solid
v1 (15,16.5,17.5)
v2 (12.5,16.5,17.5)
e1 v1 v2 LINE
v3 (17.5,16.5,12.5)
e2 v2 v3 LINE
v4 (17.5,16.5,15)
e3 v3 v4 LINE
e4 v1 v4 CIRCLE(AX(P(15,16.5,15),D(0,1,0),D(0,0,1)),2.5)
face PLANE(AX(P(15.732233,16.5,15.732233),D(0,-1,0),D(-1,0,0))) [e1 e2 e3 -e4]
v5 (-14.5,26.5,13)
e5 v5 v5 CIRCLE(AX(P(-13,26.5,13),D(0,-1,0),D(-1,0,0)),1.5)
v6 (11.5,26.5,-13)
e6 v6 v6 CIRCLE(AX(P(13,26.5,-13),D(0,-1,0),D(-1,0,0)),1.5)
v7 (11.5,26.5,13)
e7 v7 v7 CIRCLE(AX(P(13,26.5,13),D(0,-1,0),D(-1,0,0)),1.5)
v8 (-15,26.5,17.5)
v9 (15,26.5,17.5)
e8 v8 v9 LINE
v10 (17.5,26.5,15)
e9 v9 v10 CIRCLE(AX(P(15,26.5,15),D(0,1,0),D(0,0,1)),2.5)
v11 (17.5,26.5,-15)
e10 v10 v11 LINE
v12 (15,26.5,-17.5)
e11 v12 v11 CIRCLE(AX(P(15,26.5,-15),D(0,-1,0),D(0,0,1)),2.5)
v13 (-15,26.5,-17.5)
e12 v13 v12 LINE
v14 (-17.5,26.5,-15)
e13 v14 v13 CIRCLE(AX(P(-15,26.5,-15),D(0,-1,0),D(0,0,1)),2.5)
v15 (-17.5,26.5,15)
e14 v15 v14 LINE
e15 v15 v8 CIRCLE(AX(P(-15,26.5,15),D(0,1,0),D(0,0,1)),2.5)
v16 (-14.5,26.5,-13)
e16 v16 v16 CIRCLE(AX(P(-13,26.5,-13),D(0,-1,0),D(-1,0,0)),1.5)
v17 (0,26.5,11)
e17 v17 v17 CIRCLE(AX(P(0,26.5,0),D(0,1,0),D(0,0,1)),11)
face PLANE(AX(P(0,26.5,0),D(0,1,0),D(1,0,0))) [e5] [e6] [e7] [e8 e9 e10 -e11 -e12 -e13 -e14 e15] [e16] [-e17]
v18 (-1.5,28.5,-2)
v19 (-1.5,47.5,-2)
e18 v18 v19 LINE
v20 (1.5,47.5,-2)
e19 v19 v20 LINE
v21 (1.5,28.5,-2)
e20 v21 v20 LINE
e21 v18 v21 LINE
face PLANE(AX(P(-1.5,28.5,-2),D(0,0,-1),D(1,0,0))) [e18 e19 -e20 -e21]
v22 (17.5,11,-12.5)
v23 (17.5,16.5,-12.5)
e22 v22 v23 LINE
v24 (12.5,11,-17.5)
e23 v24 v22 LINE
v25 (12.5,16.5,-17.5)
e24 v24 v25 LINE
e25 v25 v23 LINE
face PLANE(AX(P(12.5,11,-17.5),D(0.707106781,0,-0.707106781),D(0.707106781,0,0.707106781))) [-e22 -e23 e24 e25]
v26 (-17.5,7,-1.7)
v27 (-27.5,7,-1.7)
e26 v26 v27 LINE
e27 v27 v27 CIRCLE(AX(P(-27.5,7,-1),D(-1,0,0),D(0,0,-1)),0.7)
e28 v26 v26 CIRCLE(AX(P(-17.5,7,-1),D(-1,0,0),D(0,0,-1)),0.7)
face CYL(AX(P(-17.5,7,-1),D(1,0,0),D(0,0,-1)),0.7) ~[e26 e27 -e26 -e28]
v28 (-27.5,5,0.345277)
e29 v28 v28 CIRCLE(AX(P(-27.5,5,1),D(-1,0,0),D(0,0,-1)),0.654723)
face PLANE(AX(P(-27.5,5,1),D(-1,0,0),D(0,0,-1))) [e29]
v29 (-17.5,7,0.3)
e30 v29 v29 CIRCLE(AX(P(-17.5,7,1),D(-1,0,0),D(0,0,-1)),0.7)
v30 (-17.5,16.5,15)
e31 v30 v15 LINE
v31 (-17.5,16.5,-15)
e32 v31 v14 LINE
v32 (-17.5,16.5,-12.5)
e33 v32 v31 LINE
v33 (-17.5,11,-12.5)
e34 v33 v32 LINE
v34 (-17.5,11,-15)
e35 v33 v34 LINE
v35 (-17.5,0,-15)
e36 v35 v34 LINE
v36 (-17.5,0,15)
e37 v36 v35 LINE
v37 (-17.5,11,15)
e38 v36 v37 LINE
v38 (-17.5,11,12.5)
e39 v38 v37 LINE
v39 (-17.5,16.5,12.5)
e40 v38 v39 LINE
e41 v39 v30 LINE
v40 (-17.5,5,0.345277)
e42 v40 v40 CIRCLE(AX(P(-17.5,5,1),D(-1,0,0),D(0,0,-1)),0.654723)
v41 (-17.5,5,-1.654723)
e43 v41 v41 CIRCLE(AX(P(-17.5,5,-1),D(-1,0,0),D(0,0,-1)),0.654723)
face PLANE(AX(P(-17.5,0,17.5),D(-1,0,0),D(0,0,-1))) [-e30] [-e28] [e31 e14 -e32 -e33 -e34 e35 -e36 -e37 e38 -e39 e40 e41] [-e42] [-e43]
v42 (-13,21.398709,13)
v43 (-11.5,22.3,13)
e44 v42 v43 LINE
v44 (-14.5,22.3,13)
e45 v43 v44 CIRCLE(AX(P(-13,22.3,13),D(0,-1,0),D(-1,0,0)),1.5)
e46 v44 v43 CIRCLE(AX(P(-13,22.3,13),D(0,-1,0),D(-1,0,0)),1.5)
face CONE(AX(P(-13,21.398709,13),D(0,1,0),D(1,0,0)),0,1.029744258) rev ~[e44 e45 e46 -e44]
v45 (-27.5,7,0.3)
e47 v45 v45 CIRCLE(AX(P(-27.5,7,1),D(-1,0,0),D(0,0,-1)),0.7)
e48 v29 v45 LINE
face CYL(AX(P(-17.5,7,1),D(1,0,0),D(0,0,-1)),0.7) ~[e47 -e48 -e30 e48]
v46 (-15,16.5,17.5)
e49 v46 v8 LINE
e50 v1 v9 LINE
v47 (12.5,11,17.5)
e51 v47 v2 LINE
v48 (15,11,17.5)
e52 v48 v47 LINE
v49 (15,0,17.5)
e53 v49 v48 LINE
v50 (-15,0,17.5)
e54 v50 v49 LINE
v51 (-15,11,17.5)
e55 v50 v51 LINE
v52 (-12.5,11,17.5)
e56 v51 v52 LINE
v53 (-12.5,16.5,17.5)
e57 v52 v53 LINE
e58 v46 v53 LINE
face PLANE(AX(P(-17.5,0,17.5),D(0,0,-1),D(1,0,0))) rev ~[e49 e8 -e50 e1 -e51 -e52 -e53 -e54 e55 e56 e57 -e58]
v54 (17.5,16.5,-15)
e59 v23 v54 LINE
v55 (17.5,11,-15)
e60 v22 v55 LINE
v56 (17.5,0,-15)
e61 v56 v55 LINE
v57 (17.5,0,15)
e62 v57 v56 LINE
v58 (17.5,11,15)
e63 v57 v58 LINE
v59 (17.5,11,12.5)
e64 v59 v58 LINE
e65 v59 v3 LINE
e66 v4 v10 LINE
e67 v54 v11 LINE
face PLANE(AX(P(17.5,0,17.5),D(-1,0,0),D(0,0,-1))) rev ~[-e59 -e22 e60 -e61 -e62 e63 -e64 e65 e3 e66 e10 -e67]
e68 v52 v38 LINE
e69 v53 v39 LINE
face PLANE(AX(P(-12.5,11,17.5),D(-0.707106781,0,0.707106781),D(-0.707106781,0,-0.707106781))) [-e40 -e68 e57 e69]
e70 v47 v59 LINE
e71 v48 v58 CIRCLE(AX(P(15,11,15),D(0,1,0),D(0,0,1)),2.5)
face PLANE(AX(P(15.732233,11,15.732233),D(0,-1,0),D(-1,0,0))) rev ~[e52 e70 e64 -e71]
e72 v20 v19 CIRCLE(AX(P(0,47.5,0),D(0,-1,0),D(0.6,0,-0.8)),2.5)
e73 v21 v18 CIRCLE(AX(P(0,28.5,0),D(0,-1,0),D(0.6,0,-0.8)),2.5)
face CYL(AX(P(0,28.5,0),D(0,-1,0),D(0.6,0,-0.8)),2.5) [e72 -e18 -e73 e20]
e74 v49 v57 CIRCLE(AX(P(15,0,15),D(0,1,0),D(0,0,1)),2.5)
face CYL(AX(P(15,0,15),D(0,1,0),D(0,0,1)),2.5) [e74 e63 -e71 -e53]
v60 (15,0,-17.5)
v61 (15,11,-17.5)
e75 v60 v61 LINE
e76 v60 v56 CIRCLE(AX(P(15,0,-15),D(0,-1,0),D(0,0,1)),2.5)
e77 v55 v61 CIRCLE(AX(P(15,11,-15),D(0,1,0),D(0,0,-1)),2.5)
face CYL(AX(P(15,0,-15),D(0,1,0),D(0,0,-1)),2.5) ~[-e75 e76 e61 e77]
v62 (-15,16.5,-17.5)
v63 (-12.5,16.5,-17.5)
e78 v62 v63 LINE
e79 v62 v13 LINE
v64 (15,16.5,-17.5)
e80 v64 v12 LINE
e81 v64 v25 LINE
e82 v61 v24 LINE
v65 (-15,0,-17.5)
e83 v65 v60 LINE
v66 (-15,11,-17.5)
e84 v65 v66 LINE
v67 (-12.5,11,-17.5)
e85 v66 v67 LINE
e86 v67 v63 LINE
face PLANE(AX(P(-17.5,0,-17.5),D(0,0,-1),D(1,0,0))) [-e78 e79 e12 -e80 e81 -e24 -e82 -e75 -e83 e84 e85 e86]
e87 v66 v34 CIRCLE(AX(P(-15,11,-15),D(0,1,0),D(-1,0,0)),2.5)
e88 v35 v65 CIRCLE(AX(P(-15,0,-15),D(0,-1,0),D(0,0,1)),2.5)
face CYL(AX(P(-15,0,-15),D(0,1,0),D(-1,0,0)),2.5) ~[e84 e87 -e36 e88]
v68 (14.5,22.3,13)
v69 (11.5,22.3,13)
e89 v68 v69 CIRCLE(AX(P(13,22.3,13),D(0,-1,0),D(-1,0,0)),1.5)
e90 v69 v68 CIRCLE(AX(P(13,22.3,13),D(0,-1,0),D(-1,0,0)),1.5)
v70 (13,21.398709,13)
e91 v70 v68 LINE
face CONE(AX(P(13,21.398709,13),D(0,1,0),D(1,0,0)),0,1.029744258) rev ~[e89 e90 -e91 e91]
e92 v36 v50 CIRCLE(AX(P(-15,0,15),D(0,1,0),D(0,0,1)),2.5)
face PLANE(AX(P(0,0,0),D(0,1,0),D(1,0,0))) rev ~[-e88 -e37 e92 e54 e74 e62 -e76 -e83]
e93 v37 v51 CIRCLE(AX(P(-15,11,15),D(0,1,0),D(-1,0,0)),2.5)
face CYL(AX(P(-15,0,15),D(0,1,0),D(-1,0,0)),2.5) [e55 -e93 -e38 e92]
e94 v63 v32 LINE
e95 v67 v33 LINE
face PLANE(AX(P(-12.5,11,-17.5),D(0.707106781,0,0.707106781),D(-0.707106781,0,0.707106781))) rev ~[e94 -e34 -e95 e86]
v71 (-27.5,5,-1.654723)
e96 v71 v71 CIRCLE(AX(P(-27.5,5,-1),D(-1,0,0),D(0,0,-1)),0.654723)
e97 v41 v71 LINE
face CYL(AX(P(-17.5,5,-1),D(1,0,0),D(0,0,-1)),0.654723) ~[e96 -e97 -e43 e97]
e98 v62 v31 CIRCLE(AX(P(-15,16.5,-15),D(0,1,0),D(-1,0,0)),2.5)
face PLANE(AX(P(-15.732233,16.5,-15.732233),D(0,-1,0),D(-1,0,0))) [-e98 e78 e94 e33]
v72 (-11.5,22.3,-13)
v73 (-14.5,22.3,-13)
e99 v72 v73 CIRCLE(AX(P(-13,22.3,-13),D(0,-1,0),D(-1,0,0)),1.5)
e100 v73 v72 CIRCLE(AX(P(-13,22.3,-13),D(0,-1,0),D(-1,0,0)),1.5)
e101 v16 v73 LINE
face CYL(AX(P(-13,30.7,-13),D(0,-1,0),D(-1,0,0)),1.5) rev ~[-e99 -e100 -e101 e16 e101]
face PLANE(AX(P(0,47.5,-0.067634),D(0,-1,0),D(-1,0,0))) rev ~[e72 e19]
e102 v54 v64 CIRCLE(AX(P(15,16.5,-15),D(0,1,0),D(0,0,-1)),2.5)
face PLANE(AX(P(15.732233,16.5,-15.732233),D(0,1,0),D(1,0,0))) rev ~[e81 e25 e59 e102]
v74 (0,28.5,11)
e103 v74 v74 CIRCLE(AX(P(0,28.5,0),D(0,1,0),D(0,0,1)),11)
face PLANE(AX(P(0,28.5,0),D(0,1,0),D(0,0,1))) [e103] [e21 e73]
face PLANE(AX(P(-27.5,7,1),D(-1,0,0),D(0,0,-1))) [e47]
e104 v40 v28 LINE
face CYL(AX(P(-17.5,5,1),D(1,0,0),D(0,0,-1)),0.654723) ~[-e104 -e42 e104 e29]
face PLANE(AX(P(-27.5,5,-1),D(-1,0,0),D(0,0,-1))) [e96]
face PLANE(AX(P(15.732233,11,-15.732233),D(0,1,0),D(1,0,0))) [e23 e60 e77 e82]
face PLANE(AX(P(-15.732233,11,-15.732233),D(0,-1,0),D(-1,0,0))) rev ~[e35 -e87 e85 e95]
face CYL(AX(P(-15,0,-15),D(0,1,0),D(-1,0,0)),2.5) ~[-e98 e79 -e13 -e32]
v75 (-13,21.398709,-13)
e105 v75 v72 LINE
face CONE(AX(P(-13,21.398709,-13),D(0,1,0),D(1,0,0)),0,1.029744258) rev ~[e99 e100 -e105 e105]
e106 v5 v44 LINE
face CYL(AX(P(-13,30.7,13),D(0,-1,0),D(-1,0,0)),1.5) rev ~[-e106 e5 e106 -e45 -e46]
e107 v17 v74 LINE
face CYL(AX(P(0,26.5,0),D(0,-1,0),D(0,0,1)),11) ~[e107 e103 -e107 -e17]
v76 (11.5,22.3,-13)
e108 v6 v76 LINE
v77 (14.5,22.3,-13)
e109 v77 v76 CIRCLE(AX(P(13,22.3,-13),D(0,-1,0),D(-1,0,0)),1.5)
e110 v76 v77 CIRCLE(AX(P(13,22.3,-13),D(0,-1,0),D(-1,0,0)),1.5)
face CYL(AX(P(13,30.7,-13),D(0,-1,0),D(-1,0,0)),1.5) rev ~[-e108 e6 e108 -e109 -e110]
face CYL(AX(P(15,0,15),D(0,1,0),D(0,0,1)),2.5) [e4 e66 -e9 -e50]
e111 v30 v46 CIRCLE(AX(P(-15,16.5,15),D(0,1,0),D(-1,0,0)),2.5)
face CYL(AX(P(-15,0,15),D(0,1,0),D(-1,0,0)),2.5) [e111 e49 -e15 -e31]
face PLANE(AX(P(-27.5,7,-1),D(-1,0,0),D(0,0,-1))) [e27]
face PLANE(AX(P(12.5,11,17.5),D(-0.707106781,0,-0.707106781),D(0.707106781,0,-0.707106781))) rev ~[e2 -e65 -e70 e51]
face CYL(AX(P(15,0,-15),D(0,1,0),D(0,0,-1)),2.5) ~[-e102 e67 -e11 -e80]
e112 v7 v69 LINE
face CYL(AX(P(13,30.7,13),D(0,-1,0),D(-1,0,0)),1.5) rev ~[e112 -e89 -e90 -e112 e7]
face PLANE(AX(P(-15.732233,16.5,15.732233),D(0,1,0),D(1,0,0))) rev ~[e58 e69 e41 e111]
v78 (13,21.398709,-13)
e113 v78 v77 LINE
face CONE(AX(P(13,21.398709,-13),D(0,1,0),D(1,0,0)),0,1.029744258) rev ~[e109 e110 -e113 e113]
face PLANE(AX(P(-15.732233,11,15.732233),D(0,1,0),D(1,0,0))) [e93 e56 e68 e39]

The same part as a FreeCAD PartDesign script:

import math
import FreeCAD as App
import Part
import Sketcher

V = App.Vector


def edges_at(feature, points):
    """Names of the edges that pass closest to the given points."""
    edges = feature.Shape.Edges
    near = lambda p: min(range(len(edges)), key=lambda i: edges[i].distToShape(Part.Vertex(*p))[0])
    return sorted({f"Edge{near(p) + 1}" for p in points})


def add_polygon(sketch, points):
    """Adds a closed chain of lines whose ends are joined by coincident constraints."""
    first, n = sketch.GeometryCount, len(points)
    for a, b in zip(points, points[1:] + points[:1]):
        sketch.addGeometry(Part.LineSegment(App.Vector(*a, 0), App.Vector(*b, 0)), False)
    for i in range(n):
        sketch.addConstraint(Sketcher.Constraint("Coincident", first + i, 2, first + (i + 1) % n, 1))

doc = App.newDocument("Part")
params = doc.addObject("Spreadsheet::Sheet", "Params")
for row, (alias, value) in enumerate([
    ("sketch1_width", "35 mm"),
    ("pad1_length", "26.5 mm"),
    ("sketch2_diameter", "22 mm"),
    ("pad2_length", "2 mm"),
    ("sketch3_radius", "2.5 mm"),
    ("sketch3_width", "3 mm"),
    ("pad3_length", "19 mm"),
    ("sketch4_diameter", "3 mm"),
    ("hole_diameter", "3 mm"),
    ("hole_depth", "4.2 mm"),
    ("fillet_radius", "2.5 mm"),
    ("sketch5_width", "5 mm"),
    ("pocket1_length", "5.5 mm"),
    ("sketch6_diameter", "1.4 mm"),
    ("pad4_length", "10 mm"),
], start=1):
    params.set(f"A{row}", alias)
    params.set(f"B{row}", "=" + value)
    params.setAlias(f"B{row}", alias)

body = doc.addObject("PartDesign::Body", "Body")

# Sketch on XZ plane
sketch1 = doc.addObject("Sketcher::SketchObject", "Sketch")
body.addObject(sketch1)
sketch1.AttachmentSupport = (doc.XZ_Plane, [""])
sketch1.MapMode = "FlatFace"
add_polygon(sketch1, [(-18, -18), (-18, 18), (18, 18), (18, -18)])  # lines 0-3
sketch1.addConstraint([
    Sketcher.Constraint("Vertical", 0),
    Sketcher.Constraint("Horizontal", 1),
    Sketcher.Constraint("Vertical", 2),
    Sketcher.Constraint("Horizontal", 3),
    Sketcher.Constraint("Symmetric", 0, 2, 2, 2, -1, 1),
    Sketcher.Constraint("Equal", 3, 0),
    Sketcher.Constraint("DistanceX", 1, 1, 1, 2, 35.0),
])
sketch1.setExpression("Constraints[10]", "Params.sketch1_width")
pad1 = doc.addObject("PartDesign::Pad", "Pad")
body.addObject(pad1)
pad1.Profile = sketch1
pad1.setExpression("Length", "Params.pad1_length")
pad1.Reversed = True

# Sketch on XZ plane
sketch2 = doc.addObject("Sketcher::SketchObject", "Sketch001")
body.addObject(sketch2)
sketch2.AttachmentSupport = (doc.XZ_Plane, [""])
sketch2.MapMode = "FlatFace"
sketch2.AttachmentOffset = App.Placement(V(0, 0, -26.5), App.Rotation())
sketch2.addGeometry(Part.Circle(V(0, 0, 0), V(0, 0, 1), 11), False)
sketch2.addConstraint([
    Sketcher.Constraint("Coincident", 0, 3, -1, 1),
    Sketcher.Constraint("Diameter", 0, 22.0),
])
sketch2.setExpression("Constraints[1]", "Params.sketch2_diameter")
pad2 = doc.addObject("PartDesign::Pad", "Pad001")
body.addObject(pad2)
pad2.Profile = sketch2
pad2.setExpression("Length", "Params.pad2_length")
pad2.Reversed = True

# Sketch on XZ plane
sketch3 = doc.addObject("Sketcher::SketchObject", "Sketch002")
body.addObject(sketch3)
sketch3.AttachmentSupport = (doc.XZ_Plane, [""])
sketch3.MapMode = "FlatFace"
sketch3.AttachmentOffset = App.Placement(V(0, 0, -28.5), App.Rotation())
sketch3.addGeometry([
    Part.LineSegment(V(1.5, -2, 0), V(-1.5, -2, 0)),
    Part.ArcOfCircle(Part.Circle(V(0, 0, 0), V(0, 0, 1), 2.5), math.radians(-53), math.radians(233)),
], False)
sketch3.addConstraint([
    Sketcher.Constraint("Coincident", 0, 1, 1, 1),
    Sketcher.Constraint("Coincident", 1, 2, 0, 2),
    Sketcher.Constraint("Horizontal", 0),
    Sketcher.Constraint("Coincident", 1, 3, -1, 1),
    Sketcher.Constraint("Radius", 1, 2.5),
    Sketcher.Constraint("DistanceX", 0, 2, 0, 1, 3.0),
])
sketch3.setExpression("Constraints[4]", "Params.sketch3_radius")
sketch3.setExpression("Constraints[5]", "Params.sketch3_width")
pad3 = doc.addObject("PartDesign::Pad", "Pad002")
body.addObject(pad3)
pad3.Profile = sketch3
pad3.setExpression("Length", "Params.pad3_length")
pad3.Reversed = True

# Sketch on XZ plane
sketch4 = doc.addObject("Sketcher::SketchObject", "Sketch003")
body.addObject(sketch4)
sketch4.AttachmentSupport = (doc.XZ_Plane, [""])
sketch4.MapMode = "FlatFace"
sketch4.AttachmentOffset = App.Placement(V(0, 0, -26.5), App.Rotation())
sketch4.addGeometry([
    Part.Circle(V(-13, -13, 0), V(0, 0, 1), 1.5),
    Part.Circle(V(13, -13, 0), V(0, 0, 1), 1.5),
    Part.Circle(V(13, 13, 0), V(0, 0, 1), 1.5),
    Part.Circle(V(-13, 13, 0), V(0, 0, 1), 1.5),
], False)
sketch4.addConstraint([
    Sketcher.Constraint("Equal", 0, 1),
    Sketcher.Constraint("Equal", 1, 2),
    Sketcher.Constraint("Equal", 2, 3),
    Sketcher.Constraint("Symmetric", 0, 3, 2, 3, -1, 1),
    Sketcher.Constraint("Symmetric", 1, 3, 3, 3, -1, 1),
    Sketcher.Constraint("Symmetric", 0, 3, 1, 3, -2),
    Sketcher.Constraint("Diameter", 0, 3.0),
    Sketcher.Constraint("DistanceX", 0, 3, -1, 1, 13.0),
    Sketcher.Constraint("DistanceY", 0, 3, -1, 1, 13.0),
])
sketch4.setExpression("Constraints[6]", "Params.sketch4_diameter")
doc.recompute()
hole = doc.addObject("PartDesign::Hole", "Hole")
body.addObject(hole)
hole.Profile = sketch4
hole.ThreadType = "None"
hole.setExpression("Diameter", "Params.hole_diameter")
hole.DepthType = "Dimension"
hole.setExpression("Depth", "Params.hole_depth")
hole.DrillPoint = "Angled"
hole.DrillPointAngle = 118
hole.Reversed = True
doc.recompute()

fillet = doc.addObject("PartDesign::Fillet", "Fillet")
body.addObject(fillet)
fillet.Base = (hole, edges_at(hole, [
    (-17.5, 13.25, -17.5),
    (17.5, 13.25, -17.5),
    (17.5, 13.25, 17.5),
    (-17.5, 13.25, 17.5),
]))
fillet.setExpression("Radius", "Params.fillet_radius")

# Sketch on XZ plane
sketch5 = doc.addObject("Sketcher::SketchObject", "Sketch004")
body.addObject(sketch5)
sketch5.AttachmentSupport = (doc.XZ_Plane, [""])
sketch5.MapMode = "FlatFace"
sketch5.AttachmentOffset = App.Placement(V(0, 0, -11), App.Rotation())
add_polygon(sketch5, [(-18, -12), (-12, -18), (-18, -18)])  # lines 0-2
add_polygon(sketch5, [(18, -18), (12, -18), (18, -12)])  # lines 3-5
add_polygon(sketch5, [(18, 12), (12, 18), (18, 18)])  # lines 6-8
add_polygon(sketch5, [(-18, 18), (-12, 18), (-18, 12)])  # lines 9-11
sketch5.addConstraint([
    Sketcher.Constraint("Horizontal", 1),
    Sketcher.Constraint("Vertical", 2),
    Sketcher.Constraint("Horizontal", 3),
    Sketcher.Constraint("Vertical", 5),
    Sketcher.Constraint("Horizontal", 7),
    Sketcher.Constraint("Vertical", 8),
    Sketcher.Constraint("Horizontal", 9),
    Sketcher.Constraint("Vertical", 11),
    Sketcher.Constraint("Symmetric", 0, 2, 6, 2, -1, 1),
    Sketcher.Constraint("Symmetric", 2, 2, 8, 2, -1, 1),
    Sketcher.Constraint("Symmetric", 3, 2, 9, 2, -1, 1),
    Sketcher.Constraint("Symmetric", 4, 2, 10, 2, -1, 1),
    Sketcher.Constraint("Symmetric", 0, 2, 3, 2, -2),
    Sketcher.Constraint("Symmetric", 2, 2, 4, 2, -2),
    Sketcher.Constraint("Perpendicular", 0, 4),
    Sketcher.Constraint("DistanceX", 1, 2, 1, 1, 5.0),
    Sketcher.Constraint("DistanceX", 0, 2, 3, 2, 25.0),
    Sketcher.Constraint("DistanceY", 4, 2, 6, 2, 30.0),
])
sketch5.setExpression("Constraints[27]", "Params.sketch5_width")
pocket1 = doc.addObject("PartDesign::Pocket", "Pocket")
body.addObject(pocket1)
pocket1.Profile = sketch5
pocket1.setExpression("Length", "Params.pocket1_length")

# Sketch on YZ plane
sketch6 = doc.addObject("Sketcher::SketchObject", "Sketch005")
body.addObject(sketch6)
sketch6.AttachmentSupport = (doc.YZ_Plane, [""])
sketch6.MapMode = "FlatFace"
sketch6.AttachmentOffset = App.Placement(V(0, 0, -17.5), App.Rotation())
sketch6.addGeometry([
    Part.Circle(V(7, -1, 0), V(0, 0, 1), 0.7),
    Part.Circle(V(5, -1, 0), V(0, 0, 1), 0.7),
    Part.Circle(V(5, 1, 0), V(0, 0, 1), 0.7),
    Part.Circle(V(7, 1, 0), V(0, 0, 1), 0.7),
], False)
sketch6.addConstraint([
    Sketcher.Constraint("Equal", 1, 2),
    Sketcher.Constraint("Equal", 0, 3),
    Sketcher.Constraint("Symmetric", 1, 3, 2, 3, -1),
    Sketcher.Constraint("Symmetric", 0, 3, 3, 3, -1),
    Sketcher.Constraint("Horizontal", 0, 3, 1, 3),
    Sketcher.Constraint("Diameter", 0, 1.4),
    Sketcher.Constraint("DistanceX", -1, 1, 0, 3, 7.0),
    Sketcher.Constraint("DistanceY", 0, 3, -1, 1, 1.0),
    Sketcher.Constraint("DistanceX", -1, 1, 1, 3, 5.0),
    Sketcher.Constraint("Diameter", 1, 1.309446),
])
sketch6.setExpression("Constraints[5]", "Params.sketch6_diameter")
pad4 = doc.addObject("PartDesign::Pad", "Pad003")
body.addObject(pad4)
pad4.Profile = sketch6
pad4.setExpression("Length", "Params.pad4_length")
pad4.Reversed = True

doc.recompute()
